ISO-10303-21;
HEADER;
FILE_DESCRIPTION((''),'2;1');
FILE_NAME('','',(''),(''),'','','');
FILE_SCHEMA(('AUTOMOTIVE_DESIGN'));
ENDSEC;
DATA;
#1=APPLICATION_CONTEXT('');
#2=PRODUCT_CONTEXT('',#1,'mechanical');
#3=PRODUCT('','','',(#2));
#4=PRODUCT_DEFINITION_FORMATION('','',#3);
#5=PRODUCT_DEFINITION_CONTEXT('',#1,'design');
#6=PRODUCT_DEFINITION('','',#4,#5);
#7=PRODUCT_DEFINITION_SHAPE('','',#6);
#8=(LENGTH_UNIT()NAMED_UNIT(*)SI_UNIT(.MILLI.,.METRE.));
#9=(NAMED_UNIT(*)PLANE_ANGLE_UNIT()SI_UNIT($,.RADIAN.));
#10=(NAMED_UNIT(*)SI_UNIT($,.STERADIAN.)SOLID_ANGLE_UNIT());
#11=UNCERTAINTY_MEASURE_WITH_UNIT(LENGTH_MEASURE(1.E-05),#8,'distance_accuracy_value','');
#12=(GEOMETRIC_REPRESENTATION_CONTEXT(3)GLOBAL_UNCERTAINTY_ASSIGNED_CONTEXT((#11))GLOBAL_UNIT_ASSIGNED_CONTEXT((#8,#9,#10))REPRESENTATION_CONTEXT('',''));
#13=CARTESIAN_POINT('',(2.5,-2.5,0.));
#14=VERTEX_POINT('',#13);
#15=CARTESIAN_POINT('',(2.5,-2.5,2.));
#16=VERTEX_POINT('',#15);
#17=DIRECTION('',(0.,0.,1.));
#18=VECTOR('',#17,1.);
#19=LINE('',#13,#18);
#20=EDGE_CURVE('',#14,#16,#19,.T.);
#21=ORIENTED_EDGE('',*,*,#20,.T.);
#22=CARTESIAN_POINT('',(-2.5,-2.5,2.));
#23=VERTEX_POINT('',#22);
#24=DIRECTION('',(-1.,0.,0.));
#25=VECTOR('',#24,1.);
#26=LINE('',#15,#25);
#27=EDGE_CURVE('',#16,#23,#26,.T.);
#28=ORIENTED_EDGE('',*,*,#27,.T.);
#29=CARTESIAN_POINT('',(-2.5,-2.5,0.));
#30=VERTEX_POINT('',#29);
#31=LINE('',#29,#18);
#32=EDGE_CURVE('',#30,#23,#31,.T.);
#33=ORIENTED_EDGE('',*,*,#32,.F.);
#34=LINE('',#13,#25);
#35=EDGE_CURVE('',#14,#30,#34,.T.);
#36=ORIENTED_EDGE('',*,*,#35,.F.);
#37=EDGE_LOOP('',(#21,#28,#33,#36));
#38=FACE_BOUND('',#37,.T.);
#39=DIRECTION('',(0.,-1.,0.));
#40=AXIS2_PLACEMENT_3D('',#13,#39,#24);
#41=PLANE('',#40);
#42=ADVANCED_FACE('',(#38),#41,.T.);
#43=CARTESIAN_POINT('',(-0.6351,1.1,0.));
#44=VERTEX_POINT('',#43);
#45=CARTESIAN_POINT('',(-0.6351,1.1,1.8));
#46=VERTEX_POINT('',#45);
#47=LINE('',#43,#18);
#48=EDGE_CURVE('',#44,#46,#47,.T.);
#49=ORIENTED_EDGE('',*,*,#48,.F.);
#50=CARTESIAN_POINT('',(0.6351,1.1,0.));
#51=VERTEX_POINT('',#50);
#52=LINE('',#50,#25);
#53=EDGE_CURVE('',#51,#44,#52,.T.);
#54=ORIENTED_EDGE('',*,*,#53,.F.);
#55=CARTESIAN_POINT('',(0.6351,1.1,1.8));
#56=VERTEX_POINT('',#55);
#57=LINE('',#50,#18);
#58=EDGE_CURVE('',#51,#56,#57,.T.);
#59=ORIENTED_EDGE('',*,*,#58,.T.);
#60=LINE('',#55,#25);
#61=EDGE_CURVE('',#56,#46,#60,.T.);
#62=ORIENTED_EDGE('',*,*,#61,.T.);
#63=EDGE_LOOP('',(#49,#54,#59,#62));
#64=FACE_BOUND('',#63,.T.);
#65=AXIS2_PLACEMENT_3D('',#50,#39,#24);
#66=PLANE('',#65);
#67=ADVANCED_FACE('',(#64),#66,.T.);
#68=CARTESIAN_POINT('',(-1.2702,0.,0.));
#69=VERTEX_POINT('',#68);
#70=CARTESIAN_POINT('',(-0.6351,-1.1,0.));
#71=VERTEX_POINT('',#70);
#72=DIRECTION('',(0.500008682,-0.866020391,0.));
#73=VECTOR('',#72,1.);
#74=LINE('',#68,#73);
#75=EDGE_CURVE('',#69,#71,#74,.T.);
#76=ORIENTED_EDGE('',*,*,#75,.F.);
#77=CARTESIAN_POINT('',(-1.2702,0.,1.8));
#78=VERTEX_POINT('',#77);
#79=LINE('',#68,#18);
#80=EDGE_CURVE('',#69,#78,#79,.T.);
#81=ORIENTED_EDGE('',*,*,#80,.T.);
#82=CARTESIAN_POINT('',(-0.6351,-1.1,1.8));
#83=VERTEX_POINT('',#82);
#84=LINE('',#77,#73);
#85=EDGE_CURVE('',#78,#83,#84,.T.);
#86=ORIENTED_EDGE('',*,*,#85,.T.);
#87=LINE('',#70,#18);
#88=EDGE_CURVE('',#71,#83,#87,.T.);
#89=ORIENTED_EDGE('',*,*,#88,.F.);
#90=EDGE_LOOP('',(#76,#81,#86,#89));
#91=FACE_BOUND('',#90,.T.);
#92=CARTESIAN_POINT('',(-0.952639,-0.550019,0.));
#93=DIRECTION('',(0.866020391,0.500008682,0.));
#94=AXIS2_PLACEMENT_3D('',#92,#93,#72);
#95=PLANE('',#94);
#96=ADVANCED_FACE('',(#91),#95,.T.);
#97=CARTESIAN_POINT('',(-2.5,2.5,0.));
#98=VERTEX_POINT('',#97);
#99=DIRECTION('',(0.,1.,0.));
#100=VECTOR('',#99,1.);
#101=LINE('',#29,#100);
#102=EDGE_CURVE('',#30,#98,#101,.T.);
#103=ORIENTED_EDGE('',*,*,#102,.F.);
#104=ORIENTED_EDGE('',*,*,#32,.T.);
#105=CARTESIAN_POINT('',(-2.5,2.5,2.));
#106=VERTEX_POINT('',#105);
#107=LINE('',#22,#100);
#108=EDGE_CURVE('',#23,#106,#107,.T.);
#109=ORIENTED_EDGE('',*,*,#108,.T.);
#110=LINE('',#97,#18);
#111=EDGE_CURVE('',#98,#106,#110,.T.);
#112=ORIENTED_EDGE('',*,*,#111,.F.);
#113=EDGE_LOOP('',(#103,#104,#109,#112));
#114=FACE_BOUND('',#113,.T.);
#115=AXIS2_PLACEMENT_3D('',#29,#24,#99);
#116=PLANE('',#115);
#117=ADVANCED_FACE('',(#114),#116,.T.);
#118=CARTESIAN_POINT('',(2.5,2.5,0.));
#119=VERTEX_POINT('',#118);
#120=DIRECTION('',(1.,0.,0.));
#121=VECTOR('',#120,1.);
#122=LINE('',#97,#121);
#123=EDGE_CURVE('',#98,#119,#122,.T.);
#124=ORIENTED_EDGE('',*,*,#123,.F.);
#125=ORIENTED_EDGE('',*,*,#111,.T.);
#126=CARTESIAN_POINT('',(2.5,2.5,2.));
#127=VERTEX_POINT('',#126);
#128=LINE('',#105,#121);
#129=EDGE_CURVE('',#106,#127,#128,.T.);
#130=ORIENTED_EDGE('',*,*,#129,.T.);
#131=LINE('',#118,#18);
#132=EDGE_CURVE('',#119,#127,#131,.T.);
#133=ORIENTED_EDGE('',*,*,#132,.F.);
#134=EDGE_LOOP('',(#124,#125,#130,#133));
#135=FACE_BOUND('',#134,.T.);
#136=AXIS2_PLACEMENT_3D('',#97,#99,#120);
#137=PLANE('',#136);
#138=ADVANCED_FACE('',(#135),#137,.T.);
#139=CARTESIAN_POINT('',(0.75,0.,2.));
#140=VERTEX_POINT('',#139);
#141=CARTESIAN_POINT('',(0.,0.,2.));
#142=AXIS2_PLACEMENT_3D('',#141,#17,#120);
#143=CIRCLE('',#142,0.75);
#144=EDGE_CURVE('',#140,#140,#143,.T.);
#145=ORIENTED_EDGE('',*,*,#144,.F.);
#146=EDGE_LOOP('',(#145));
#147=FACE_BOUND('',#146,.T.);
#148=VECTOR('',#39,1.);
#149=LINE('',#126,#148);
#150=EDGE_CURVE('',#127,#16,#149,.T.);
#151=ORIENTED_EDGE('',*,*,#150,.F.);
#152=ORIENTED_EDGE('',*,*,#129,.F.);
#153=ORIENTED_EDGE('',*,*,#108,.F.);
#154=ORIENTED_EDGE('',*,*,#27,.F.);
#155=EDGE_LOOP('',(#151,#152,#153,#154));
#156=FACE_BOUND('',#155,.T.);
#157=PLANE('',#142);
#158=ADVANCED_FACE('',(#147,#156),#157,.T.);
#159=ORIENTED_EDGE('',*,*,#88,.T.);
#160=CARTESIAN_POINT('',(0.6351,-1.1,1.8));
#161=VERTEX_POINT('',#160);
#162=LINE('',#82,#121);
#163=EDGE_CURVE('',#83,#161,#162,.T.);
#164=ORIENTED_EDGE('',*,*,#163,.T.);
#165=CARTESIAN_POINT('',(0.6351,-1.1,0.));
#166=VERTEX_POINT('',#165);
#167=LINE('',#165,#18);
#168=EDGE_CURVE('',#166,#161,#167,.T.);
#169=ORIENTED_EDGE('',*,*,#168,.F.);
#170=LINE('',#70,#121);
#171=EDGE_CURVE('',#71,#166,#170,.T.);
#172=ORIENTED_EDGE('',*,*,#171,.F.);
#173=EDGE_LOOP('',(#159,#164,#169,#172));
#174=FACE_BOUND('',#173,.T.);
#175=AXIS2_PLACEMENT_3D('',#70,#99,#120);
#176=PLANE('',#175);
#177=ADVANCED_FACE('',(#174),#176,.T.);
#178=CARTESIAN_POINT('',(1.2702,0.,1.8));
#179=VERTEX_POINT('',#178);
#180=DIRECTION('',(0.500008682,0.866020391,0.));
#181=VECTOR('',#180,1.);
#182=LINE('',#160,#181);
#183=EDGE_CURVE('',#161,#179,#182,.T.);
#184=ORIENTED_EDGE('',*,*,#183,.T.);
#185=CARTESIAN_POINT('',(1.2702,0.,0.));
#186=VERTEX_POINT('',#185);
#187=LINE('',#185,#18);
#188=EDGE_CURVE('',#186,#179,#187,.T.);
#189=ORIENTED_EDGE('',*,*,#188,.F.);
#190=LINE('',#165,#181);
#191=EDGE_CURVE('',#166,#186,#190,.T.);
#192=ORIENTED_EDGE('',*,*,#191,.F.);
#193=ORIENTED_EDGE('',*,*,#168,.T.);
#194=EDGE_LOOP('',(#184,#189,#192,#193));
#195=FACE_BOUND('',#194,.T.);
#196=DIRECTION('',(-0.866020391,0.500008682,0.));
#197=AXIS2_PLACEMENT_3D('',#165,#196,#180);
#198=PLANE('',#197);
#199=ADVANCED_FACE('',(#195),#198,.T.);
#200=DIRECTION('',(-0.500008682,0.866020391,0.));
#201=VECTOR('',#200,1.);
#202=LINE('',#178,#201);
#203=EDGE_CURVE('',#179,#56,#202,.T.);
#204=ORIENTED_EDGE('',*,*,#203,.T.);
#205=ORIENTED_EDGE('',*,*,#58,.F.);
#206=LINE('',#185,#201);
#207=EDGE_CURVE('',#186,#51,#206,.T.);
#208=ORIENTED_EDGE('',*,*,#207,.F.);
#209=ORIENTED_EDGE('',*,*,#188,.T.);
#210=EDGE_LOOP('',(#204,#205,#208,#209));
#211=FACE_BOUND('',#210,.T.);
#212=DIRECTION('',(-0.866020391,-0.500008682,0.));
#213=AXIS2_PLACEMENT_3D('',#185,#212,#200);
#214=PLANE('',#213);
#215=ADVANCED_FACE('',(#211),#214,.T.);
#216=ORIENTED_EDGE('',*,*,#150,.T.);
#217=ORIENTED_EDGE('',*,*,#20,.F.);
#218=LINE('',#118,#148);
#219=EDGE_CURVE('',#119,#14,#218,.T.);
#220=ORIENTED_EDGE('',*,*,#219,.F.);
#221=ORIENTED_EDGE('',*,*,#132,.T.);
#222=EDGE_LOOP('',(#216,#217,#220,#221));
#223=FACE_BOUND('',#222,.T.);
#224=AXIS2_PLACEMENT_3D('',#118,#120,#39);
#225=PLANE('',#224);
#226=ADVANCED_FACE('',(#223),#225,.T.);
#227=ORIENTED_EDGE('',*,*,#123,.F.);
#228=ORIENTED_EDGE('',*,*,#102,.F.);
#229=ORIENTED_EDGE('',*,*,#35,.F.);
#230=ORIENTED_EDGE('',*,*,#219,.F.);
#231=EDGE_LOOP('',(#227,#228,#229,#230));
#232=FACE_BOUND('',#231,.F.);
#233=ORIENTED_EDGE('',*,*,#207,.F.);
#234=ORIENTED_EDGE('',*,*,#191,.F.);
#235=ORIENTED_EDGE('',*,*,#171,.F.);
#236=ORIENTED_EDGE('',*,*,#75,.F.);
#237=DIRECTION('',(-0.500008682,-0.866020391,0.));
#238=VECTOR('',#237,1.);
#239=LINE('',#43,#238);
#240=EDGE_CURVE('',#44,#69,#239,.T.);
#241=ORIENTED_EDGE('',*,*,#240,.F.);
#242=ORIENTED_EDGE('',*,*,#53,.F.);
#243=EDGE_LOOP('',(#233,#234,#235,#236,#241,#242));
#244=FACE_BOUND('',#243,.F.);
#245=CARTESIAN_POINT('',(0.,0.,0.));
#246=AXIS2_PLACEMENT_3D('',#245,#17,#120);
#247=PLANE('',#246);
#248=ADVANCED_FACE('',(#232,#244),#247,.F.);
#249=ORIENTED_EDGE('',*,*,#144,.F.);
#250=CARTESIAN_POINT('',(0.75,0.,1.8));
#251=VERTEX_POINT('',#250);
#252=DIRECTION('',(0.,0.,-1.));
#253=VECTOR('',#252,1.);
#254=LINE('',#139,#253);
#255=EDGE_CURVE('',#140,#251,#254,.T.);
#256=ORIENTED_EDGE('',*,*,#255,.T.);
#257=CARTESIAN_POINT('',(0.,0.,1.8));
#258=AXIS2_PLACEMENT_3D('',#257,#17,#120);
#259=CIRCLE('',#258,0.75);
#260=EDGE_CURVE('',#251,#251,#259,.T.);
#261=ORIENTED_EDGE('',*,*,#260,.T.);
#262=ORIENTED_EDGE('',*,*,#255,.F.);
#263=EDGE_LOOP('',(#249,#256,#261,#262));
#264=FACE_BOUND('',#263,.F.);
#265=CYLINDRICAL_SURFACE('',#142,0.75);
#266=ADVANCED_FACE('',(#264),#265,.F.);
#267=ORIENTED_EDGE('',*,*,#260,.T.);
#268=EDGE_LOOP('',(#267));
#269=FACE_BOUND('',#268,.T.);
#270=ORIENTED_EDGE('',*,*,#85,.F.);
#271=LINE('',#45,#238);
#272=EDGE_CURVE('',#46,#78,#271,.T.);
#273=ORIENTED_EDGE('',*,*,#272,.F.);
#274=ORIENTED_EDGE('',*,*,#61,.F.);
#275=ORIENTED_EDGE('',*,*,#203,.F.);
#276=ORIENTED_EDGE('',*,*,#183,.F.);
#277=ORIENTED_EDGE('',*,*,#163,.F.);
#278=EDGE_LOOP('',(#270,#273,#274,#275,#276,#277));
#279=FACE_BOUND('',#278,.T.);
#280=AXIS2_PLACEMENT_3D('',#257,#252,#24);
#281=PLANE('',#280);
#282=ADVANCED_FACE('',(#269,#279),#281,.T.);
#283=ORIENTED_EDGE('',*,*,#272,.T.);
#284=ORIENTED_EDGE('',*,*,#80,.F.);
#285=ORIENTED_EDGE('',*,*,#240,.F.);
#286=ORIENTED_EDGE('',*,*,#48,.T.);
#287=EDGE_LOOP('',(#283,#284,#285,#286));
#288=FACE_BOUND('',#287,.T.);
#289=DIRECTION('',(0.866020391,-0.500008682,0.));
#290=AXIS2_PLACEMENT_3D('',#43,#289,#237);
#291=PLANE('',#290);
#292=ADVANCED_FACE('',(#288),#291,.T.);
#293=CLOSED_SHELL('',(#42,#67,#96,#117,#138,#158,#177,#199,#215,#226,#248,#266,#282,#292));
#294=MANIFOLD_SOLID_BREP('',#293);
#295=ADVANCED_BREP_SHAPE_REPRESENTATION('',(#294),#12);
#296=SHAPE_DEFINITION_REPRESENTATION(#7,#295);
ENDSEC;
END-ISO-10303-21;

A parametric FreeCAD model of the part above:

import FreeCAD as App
import Part
import Sketcher
from FreeCAD import Vector
Q = App.Units.Quantity

doc = App.newDocument("Part")
body = doc.addObject("PartDesign::Body", "Body")

# Sketch on XY plane
sketch1 = body.newObject("Sketcher::SketchObject", "Sketch")
sketch1.AttachmentSupport = (doc.getObject("XY_Plane"), [""])
sketch1.MapMode = "FlatFace"
sketch1.addGeometry([
    Part.LineSegment(Vector(2, 2, 0), Vector(-2, 2, 0)),
    Part.LineSegment(Vector(-2, 2, 0), Vector(-2, -2, 0)),
    Part.LineSegment(Vector(-2, -2, 0), Vector(2, -2, 0)),
    Part.LineSegment(Vector(2, -2, 0), Vector(2, 2, 0)),
], False)
sketch1.addConstraint([
    Sketcher.Constraint("Coincident", 0, 2, 1, 1),
    Sketcher.Constraint("Coincident", 1, 2, 2, 1),
    Sketcher.Constraint("Coincident", 2, 2, 3, 1),
    Sketcher.Constraint("Coincident", 3, 2, 0, 1),
    Sketcher.Constraint("Horizontal", 0),
    Sketcher.Constraint("Vertical", 1),
    Sketcher.Constraint("Horizontal", 2),
    Sketcher.Constraint("Vertical", 3),
    Sketcher.Constraint("Symmetric", 0, 2, 2, 2, -1, 1),
    Sketcher.Constraint("Equal", 2, 1),
    Sketcher.Constraint("DistanceX", 0, 2, 0, 1, 5.0),
])
pad1 = body.newObject("PartDesign::Pad", "Pad")
pad1.Profile = sketch1
pad1.Length = 2

# Sketch on XY plane
sketch2 = body.newObject("Sketcher::SketchObject", "Sketch001")
sketch2.AttachmentSupport = (doc.getObject("XY_Plane"), [""])
sketch2.MapMode = "FlatFace"
sketch2.AttachmentOffset = App.Placement(Vector(0, 0, 2), App.Rotation())
sketch2.addGeometry(Part.Circle(Vector(0, 0, 0), Vector(0, 0, 1), 0.8), False)
sketch2.addConstraint([
    Sketcher.Constraint("Coincident", 0, 3, -1, 1),
    Sketcher.Constraint("Diameter", 0, 1.5),
])
pocket1 = body.newObject("PartDesign::Pocket", "Pocket")
pocket1.Profile = sketch2
pocket1.Length = 10

# Sketch on XY plane
sketch3 = body.newObject("Sketcher::SketchObject", "Sketch002")
sketch3.AttachmentSupport = (doc.getObject("XY_Plane"), [""])
sketch3.MapMode = "FlatFace"
sketch3.addGeometry([
    Part.LineSegment(Vector(-1.3, 0, 0), Vector(-0.6, 1.1, 0)),  # 0
    Part.LineSegment(Vector(-0.6, 1.1, 0), Vector(0.6, 1.1, 0)),  # 1
    Part.LineSegment(Vector(0.6, 1.1, 0), Vector(1.3, 0, 0)),  # 2
    Part.LineSegment(Vector(1.3, 0, 0), Vector(0.6, -1.1, 0)),  # 3
    Part.LineSegment(Vector(0.6, -1.1, 0), Vector(-0.6, -1.1, 0)),  # 4
    Part.LineSegment(Vector(-0.6, -1.1, 0), Vector(-1.3, 0, 0)),  # 5
], False)
sketch3.addConstraint([
    Sketcher.Constraint("Coincident", 0, 2, 1, 1),
    Sketcher.Constraint("Coincident", 1, 2, 2, 1),
    Sketcher.Constraint("Coincident", 2, 2, 3, 1),
    Sketcher.Constraint("Coincident", 3, 2, 4, 1),
    Sketcher.Constraint("Coincident", 4, 2, 5, 1),
    Sketcher.Constraint("Coincident", 5, 2, 0, 1),
    Sketcher.Constraint("Horizontal", 1),
    Sketcher.Constraint("Horizontal", 4),
    Sketcher.Constraint("Symmetric", 0, 2, 3, 2, -1, 1),
    Sketcher.Constraint("Symmetric", 2, 2, 5, 2, -1, 1),
    Sketcher.Constraint("PointOnObject", 2, 2, -1),
    Sketcher.Constraint("Parallel", 2, 5),
    Sketcher.Constraint("Vertical", 1, 2, 3, 2),
    Sketcher.Constraint("DistanceY", 3, 2, 1, 2, 2.2),
    Sketcher.Constraint("Angle", 0, Q("59.9994 deg")),
    Sketcher.Constraint("DistanceX", 1, 1, 1, 2, 1.2702),
])
pocket2 = body.newObject("PartDesign::Pocket", "Pocket001")
pocket2.Profile = sketch3
pocket2.Length = 1.8
pocket2.Reversed = True

doc.recompute()
